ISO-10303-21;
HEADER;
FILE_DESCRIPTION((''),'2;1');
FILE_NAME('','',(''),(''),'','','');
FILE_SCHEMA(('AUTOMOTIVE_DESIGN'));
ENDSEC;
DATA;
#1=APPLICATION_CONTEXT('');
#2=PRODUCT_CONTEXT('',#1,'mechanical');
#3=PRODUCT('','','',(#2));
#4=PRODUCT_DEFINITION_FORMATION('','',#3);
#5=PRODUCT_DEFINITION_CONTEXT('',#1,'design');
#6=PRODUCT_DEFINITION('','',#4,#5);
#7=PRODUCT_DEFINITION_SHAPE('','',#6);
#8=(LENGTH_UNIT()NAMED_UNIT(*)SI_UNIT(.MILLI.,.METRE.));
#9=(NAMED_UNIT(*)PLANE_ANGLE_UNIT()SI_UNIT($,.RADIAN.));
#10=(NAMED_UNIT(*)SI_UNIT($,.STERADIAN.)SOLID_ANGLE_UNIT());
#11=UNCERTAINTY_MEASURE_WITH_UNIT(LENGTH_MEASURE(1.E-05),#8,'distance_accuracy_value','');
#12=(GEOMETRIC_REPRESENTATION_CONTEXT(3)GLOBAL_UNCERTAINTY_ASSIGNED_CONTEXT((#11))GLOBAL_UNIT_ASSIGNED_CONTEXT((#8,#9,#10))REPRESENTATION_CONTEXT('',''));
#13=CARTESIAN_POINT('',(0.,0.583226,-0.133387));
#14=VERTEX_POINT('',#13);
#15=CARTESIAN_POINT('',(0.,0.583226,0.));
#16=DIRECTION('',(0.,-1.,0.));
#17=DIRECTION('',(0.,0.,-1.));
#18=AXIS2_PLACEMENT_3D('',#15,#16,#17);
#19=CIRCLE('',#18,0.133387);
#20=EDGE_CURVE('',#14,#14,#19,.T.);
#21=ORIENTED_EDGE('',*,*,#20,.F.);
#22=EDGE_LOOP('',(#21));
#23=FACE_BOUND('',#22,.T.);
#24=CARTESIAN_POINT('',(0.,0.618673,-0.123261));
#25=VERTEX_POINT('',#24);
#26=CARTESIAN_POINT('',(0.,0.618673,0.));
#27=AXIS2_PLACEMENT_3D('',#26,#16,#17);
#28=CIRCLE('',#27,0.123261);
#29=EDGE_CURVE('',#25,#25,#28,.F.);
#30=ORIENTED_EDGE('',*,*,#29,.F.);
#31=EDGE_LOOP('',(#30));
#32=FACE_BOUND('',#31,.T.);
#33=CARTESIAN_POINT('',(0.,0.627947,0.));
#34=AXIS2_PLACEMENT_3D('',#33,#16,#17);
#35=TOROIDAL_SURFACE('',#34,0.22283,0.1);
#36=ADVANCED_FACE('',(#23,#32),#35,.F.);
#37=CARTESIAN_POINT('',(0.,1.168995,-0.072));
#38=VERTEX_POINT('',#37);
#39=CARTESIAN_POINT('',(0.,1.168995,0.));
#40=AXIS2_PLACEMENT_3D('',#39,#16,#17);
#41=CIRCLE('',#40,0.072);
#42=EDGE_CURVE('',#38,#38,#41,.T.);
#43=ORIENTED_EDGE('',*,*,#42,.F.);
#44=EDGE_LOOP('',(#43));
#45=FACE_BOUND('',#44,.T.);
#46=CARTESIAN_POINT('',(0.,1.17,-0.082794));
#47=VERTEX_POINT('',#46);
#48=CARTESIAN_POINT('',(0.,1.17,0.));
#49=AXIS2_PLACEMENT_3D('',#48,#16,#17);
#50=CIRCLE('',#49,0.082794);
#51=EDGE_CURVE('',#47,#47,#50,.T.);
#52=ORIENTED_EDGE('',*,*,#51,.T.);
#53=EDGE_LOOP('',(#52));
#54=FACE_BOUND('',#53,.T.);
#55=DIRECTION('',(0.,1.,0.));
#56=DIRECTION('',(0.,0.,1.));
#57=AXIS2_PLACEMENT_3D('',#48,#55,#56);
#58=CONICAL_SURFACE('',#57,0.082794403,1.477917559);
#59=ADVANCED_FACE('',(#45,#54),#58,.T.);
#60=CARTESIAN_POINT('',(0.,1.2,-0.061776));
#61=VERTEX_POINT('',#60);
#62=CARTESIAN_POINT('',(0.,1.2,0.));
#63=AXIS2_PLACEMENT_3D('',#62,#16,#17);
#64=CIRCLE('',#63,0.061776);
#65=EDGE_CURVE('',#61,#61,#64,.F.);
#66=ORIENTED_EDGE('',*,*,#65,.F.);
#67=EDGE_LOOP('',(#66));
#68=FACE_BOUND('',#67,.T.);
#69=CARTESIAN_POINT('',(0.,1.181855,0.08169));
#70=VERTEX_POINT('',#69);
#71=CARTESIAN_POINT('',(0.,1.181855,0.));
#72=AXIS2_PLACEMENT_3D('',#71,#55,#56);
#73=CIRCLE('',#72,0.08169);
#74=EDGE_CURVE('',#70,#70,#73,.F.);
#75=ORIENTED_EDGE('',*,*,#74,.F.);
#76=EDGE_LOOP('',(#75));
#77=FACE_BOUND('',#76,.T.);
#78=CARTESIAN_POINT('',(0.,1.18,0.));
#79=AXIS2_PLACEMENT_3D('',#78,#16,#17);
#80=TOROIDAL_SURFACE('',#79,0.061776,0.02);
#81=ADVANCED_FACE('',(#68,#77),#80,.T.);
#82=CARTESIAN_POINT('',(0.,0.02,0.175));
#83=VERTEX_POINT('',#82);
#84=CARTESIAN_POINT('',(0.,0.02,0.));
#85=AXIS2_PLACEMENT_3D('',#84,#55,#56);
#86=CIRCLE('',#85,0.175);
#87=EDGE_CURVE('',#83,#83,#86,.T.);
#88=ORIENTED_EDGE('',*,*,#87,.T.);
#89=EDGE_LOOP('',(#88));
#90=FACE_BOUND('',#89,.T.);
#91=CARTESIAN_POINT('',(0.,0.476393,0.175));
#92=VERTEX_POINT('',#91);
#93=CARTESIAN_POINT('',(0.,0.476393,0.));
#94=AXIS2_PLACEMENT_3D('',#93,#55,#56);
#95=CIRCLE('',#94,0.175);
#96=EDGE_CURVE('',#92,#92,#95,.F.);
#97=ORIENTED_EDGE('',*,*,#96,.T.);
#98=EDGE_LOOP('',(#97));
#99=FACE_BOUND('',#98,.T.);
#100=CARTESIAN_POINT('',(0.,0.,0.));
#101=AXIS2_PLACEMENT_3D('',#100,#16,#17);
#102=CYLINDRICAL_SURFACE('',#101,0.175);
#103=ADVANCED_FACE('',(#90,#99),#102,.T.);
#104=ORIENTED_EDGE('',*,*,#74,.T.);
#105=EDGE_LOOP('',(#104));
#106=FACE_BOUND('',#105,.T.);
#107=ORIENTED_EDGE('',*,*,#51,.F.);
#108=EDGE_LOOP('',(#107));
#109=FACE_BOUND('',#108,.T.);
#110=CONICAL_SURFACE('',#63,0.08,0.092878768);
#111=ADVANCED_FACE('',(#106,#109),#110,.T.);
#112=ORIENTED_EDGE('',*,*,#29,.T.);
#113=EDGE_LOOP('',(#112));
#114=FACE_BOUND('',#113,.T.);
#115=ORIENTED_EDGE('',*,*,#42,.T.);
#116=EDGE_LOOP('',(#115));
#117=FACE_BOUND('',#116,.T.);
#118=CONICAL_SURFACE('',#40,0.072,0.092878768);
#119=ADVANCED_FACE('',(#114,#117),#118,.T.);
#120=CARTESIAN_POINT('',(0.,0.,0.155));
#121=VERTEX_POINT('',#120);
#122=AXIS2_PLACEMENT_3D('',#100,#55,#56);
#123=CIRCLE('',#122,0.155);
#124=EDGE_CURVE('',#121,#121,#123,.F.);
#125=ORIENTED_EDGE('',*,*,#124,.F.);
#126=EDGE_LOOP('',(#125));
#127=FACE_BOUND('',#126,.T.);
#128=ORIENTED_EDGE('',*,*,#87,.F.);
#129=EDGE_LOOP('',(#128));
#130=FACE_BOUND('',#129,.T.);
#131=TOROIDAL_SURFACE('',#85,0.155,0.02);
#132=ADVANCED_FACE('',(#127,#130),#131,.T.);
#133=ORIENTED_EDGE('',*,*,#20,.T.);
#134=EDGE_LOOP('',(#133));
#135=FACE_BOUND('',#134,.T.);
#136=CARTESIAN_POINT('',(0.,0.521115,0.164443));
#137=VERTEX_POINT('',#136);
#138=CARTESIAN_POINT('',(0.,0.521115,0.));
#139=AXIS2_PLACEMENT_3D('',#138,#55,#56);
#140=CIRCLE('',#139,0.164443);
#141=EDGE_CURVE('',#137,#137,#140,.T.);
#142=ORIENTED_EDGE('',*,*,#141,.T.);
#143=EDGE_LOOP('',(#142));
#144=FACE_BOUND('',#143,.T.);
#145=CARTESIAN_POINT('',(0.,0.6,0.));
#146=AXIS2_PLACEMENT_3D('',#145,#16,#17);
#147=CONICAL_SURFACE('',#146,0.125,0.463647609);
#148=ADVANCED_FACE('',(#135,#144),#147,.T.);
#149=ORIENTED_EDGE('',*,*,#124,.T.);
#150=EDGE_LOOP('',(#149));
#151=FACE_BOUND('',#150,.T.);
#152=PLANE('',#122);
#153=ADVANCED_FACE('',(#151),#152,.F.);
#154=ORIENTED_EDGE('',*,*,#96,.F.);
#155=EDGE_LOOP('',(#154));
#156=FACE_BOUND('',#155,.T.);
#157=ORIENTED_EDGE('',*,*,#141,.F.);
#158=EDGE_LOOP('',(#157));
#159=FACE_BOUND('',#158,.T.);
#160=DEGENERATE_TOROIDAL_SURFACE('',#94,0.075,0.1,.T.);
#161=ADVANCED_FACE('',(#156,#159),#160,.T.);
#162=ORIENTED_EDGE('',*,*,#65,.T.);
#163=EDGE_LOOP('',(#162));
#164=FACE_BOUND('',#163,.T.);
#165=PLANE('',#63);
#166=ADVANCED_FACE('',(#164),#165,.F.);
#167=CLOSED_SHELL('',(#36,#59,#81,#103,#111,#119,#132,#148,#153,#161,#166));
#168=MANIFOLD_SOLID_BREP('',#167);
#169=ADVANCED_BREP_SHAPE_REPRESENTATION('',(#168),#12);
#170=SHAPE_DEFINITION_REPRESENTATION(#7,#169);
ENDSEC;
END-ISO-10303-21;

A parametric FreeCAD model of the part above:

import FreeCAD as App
import Part
import Sketcher
from FreeCAD import Vector


def edges_at(feature, points):
    """Names of the edges that pass closest to the given points."""
    edges = feature.Shape.Edges
    near = lambda p: min(range(len(edges)), key=lambda i: edges[i].distToShape(Part.Vertex(*p))[0])
    return sorted({f"Edge{near(p) + 1}" for p in points})


def add_polygon(sketch, points):
    """Adds a closed chain of lines whose ends are joined by coincident constraints."""
    first, n = sketch.GeometryCount, len(points)
    for a, b in zip(points, points[1:] + points[:1]):
        sketch.addGeometry(Part.LineSegment(App.Vector(*a, 0), App.Vector(*b, 0)), False)
    for i in range(n):
        sketch.addConstraint(Sketcher.Constraint("Coincident", first + i, 2, first + (i + 1) % n, 1))

doc = App.newDocument("Part")
body = doc.addObject("PartDesign::Body", "Body")

# Sketch on XY plane
sketch1 = body.newObject("Sketcher::SketchObject", "Sketch")
sketch1.AttachmentSupport = (doc.getObject("XY_Plane"), [""])
sketch1.MapMode = "FlatFace"
add_polygon(sketch1, [(-0.175, 0), (0, 0), (0, 1.2), (-0.08, 1.2), (-0.082794, 1.17), (-0.072, 1.168995), (-0.125, 0.6), (-0.175, 0.5)])  # lines 0-7
sketch1.addConstraint([
    Sketcher.Constraint("Horizontal", 0),
    Sketcher.Constraint("Vertical", 1),
    Sketcher.Constraint("Horizontal", 2),
    Sketcher.Constraint("Vertical", 7),
    Sketcher.Constraint("Coincident", 0, 2, -1, 1),
    Sketcher.Constraint("Perpendicular", 3, 4),
    Sketcher.Constraint("Perpendicular", 4, 5),
    Sketcher.Constraint("DistanceY", 1, 1, 1, 2, 1.2),
    Sketcher.Constraint("DistanceY", 7, 2, 7, 1, 0.5),
    Sketcher.Constraint("DistanceX", 2, 2, 2, 1, 0.08),
    Sketcher.Constraint("DistanceY", -1, 1, 5, 2, 0.6),
    Sketcher.Constraint("DistanceX", 0, 1, 0, 2, 0.175),
    Sketcher.Constraint("DistanceY", -1, 1, 3, 2, 1.17),
    Sketcher.Constraint("DistanceX", 6, 2, 5, 2, 0.05),
    Sketcher.Constraint("DistanceX", 4, 2, -1, 1, 0.072),
])
revolution = body.newObject("PartDesign::Revolution", "Revolution")
revolution.Profile = sketch1
revolution.ReferenceAxis = (sketch1, ["V_Axis"])
revolution.Angle = 360
doc.recompute()

fillet = body.newObject("PartDesign::Fillet", "Fillet")
fillet.Base = (revolution, edges_at(revolution, [(0, 0.6, 0.125), (0, 0.5, 0.175)]))
fillet.Radius = 0.1
doc.recompute()

fillet2 = body.newObject("PartDesign::Fillet", "Fillet001")
fillet2.Base = (fillet, edges_at(fillet, [(0, 1.2, 0.08), (0, 0, 0.175)]))
fillet2.Radius = 0.02

doc.recompute()
